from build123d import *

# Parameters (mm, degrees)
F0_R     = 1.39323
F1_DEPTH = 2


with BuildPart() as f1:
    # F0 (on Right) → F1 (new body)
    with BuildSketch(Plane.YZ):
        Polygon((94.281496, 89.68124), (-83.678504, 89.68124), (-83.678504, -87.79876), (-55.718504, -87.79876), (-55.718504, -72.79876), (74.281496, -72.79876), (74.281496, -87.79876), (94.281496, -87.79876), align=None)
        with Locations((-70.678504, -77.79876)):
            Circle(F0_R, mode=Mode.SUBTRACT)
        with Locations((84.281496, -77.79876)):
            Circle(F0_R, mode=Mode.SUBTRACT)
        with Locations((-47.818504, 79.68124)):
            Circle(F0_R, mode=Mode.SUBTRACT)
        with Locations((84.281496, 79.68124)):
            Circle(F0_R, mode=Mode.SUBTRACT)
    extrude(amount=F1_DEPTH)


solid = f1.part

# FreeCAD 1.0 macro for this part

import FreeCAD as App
import Part
import Sketcher

V = App.Vector


def add_polygon(sketch, points):
    """Adds a closed chain of lines whose ends are joined by coincident constraints."""
    first, n = sketch.GeometryCount, len(points)
    for a, b in zip(points, points[1:] + points[:1]):
        sketch.addGeometry(Part.LineSegment(App.Vector(*a, 0), App.Vector(*b, 0)), False)
    for i in range(n):
        sketch.addConstraint(Sketcher.Constraint("Coincident", first + i, 2, first + (i + 1) % n, 1))

doc = App.newDocument("Part")
body = doc.addObject("PartDesign::Body", "Body")

# Sketch on YZ plane
sketch1 = doc.addObject("Sketcher::SketchObject", "Sketch")
body.addObject(sketch1)
sketch1.AttachmentSupport = (doc.YZ_Plane, [""])
sketch1.MapMode = "FlatFace"
add_polygon(sketch1, [(94.3, 89.7), (-83.7, 89.7), (-83.7, -87.8), (-55.7, -87.8), (-55.7, -72.8), (74.3, -72.8), (74.3, -87.8), (94.3, -87.8)])  # lines 0-7
sketch1.addGeometry(Part.Circle(V(-70.7, -77.8, 0), V(0, 0, 1), 1.4), False)  # 8
sketch1.addGeometry(Part.Circle(V(84.3, -77.8, 0), V(0, 0, 1), 1.4), False)  # 9
sketch1.addGeometry(Part.Circle(V(-47.8, 79.7, 0), V(0, 0, 1), 1.4), False)  # 10
sketch1.addGeometry(Part.Circle(V(84.3, 79.7, 0), V(0, 0, 1), 1.4), False)  # 11
sketch1.addConstraint(Sketcher.Constraint("Horizontal", 0))
sketch1.addConstraint(Sketcher.Constraint("Vertical", 1))
sketch1.addConstraint(Sketcher.Constraint("Horizontal", 2))
sketch1.addConstraint(Sketcher.Constraint("Vertical", 3))
sketch1.addConstraint(Sketcher.Constraint("Horizontal", 4))
sketch1.addConstraint(Sketcher.Constraint("Vertical", 5))
sketch1.addConstraint(Sketcher.Constraint("Horizontal", 6))
sketch1.addConstraint(Sketcher.Constraint("Vertical", 7))
sketch1.addConstraint(Sketcher.Constraint("Equal", 8, 9))
sketch1.addConstraint(Sketcher.Constraint("Equal", 9, 10))
sketch1.addConstraint(Sketcher.Constraint("Equal", 10, 11))
sketch1.addConstraint(Sketcher.Constraint("Horizontal", 8, 3, 9, 3))
sketch1.addConstraint(Sketcher.Constraint("Horizontal", 10, 3, 11, 3))
sketch1.addConstraint(Sketcher.Constraint("Horizontal", 2, 2, 5, 2))
sketch1.addConstraint(Sketcher.Constraint("Vertical", 9, 3, 11, 3))
sketch1.addConstraint(Sketcher.Constraint("DistanceX", 4, 1, 4, 2, 130.0))
sketch1.addConstraint(Sketcher.Constraint("DistanceX", 6, 1, 6, 2, 20.0))
sketch1.addConstraint(Sketcher.Constraint("DistanceY", 3, 1, 3, 2, 15.0))
sketch1.addConstraint(Sketcher.Constraint("DistanceY", 10, 3, 0, 2, 10.0))
sketch1.addConstraint(Sketcher.Constraint("DistanceX", 0, 2, 8, 3, 13.0))
sketch1.addConstraint(Sketcher.Constraint("DistanceY", 1, 2, 8, 3, 10.0))
sketch1.addConstraint(Sketcher.Constraint("DistanceX", 2, 2, 9, 3, 140.0))
sketch1.addConstraint(Sketcher.Constraint("DistanceX", 0, 2, 0, 1, 177.96))
sketch1.addConstraint(Sketcher.Constraint("DistanceY", 1, 2, 1, 1, 177.48))
sketch1.addConstraint(Sketcher.Constraint("DistanceX", 10, 3, 9, 3, 132.1))
sketch1.addConstraint(Sketcher.Constraint("Diameter", 8, 2.78646))
sketch1.addConstraint(Sketcher.Constraint("DistanceY", 8, 3, -1, 1, 77.79876))
sketch1.addConstraint(Sketcher.Constraint("DistanceX", 8, 3, -1, 1, 70.678504))
pad1 = doc.addObject("PartDesign::Pad", "Pad")
body.addObject(pad1)
pad1.Profile = sketch1
pad1.Length = 2

doc.recompute()
